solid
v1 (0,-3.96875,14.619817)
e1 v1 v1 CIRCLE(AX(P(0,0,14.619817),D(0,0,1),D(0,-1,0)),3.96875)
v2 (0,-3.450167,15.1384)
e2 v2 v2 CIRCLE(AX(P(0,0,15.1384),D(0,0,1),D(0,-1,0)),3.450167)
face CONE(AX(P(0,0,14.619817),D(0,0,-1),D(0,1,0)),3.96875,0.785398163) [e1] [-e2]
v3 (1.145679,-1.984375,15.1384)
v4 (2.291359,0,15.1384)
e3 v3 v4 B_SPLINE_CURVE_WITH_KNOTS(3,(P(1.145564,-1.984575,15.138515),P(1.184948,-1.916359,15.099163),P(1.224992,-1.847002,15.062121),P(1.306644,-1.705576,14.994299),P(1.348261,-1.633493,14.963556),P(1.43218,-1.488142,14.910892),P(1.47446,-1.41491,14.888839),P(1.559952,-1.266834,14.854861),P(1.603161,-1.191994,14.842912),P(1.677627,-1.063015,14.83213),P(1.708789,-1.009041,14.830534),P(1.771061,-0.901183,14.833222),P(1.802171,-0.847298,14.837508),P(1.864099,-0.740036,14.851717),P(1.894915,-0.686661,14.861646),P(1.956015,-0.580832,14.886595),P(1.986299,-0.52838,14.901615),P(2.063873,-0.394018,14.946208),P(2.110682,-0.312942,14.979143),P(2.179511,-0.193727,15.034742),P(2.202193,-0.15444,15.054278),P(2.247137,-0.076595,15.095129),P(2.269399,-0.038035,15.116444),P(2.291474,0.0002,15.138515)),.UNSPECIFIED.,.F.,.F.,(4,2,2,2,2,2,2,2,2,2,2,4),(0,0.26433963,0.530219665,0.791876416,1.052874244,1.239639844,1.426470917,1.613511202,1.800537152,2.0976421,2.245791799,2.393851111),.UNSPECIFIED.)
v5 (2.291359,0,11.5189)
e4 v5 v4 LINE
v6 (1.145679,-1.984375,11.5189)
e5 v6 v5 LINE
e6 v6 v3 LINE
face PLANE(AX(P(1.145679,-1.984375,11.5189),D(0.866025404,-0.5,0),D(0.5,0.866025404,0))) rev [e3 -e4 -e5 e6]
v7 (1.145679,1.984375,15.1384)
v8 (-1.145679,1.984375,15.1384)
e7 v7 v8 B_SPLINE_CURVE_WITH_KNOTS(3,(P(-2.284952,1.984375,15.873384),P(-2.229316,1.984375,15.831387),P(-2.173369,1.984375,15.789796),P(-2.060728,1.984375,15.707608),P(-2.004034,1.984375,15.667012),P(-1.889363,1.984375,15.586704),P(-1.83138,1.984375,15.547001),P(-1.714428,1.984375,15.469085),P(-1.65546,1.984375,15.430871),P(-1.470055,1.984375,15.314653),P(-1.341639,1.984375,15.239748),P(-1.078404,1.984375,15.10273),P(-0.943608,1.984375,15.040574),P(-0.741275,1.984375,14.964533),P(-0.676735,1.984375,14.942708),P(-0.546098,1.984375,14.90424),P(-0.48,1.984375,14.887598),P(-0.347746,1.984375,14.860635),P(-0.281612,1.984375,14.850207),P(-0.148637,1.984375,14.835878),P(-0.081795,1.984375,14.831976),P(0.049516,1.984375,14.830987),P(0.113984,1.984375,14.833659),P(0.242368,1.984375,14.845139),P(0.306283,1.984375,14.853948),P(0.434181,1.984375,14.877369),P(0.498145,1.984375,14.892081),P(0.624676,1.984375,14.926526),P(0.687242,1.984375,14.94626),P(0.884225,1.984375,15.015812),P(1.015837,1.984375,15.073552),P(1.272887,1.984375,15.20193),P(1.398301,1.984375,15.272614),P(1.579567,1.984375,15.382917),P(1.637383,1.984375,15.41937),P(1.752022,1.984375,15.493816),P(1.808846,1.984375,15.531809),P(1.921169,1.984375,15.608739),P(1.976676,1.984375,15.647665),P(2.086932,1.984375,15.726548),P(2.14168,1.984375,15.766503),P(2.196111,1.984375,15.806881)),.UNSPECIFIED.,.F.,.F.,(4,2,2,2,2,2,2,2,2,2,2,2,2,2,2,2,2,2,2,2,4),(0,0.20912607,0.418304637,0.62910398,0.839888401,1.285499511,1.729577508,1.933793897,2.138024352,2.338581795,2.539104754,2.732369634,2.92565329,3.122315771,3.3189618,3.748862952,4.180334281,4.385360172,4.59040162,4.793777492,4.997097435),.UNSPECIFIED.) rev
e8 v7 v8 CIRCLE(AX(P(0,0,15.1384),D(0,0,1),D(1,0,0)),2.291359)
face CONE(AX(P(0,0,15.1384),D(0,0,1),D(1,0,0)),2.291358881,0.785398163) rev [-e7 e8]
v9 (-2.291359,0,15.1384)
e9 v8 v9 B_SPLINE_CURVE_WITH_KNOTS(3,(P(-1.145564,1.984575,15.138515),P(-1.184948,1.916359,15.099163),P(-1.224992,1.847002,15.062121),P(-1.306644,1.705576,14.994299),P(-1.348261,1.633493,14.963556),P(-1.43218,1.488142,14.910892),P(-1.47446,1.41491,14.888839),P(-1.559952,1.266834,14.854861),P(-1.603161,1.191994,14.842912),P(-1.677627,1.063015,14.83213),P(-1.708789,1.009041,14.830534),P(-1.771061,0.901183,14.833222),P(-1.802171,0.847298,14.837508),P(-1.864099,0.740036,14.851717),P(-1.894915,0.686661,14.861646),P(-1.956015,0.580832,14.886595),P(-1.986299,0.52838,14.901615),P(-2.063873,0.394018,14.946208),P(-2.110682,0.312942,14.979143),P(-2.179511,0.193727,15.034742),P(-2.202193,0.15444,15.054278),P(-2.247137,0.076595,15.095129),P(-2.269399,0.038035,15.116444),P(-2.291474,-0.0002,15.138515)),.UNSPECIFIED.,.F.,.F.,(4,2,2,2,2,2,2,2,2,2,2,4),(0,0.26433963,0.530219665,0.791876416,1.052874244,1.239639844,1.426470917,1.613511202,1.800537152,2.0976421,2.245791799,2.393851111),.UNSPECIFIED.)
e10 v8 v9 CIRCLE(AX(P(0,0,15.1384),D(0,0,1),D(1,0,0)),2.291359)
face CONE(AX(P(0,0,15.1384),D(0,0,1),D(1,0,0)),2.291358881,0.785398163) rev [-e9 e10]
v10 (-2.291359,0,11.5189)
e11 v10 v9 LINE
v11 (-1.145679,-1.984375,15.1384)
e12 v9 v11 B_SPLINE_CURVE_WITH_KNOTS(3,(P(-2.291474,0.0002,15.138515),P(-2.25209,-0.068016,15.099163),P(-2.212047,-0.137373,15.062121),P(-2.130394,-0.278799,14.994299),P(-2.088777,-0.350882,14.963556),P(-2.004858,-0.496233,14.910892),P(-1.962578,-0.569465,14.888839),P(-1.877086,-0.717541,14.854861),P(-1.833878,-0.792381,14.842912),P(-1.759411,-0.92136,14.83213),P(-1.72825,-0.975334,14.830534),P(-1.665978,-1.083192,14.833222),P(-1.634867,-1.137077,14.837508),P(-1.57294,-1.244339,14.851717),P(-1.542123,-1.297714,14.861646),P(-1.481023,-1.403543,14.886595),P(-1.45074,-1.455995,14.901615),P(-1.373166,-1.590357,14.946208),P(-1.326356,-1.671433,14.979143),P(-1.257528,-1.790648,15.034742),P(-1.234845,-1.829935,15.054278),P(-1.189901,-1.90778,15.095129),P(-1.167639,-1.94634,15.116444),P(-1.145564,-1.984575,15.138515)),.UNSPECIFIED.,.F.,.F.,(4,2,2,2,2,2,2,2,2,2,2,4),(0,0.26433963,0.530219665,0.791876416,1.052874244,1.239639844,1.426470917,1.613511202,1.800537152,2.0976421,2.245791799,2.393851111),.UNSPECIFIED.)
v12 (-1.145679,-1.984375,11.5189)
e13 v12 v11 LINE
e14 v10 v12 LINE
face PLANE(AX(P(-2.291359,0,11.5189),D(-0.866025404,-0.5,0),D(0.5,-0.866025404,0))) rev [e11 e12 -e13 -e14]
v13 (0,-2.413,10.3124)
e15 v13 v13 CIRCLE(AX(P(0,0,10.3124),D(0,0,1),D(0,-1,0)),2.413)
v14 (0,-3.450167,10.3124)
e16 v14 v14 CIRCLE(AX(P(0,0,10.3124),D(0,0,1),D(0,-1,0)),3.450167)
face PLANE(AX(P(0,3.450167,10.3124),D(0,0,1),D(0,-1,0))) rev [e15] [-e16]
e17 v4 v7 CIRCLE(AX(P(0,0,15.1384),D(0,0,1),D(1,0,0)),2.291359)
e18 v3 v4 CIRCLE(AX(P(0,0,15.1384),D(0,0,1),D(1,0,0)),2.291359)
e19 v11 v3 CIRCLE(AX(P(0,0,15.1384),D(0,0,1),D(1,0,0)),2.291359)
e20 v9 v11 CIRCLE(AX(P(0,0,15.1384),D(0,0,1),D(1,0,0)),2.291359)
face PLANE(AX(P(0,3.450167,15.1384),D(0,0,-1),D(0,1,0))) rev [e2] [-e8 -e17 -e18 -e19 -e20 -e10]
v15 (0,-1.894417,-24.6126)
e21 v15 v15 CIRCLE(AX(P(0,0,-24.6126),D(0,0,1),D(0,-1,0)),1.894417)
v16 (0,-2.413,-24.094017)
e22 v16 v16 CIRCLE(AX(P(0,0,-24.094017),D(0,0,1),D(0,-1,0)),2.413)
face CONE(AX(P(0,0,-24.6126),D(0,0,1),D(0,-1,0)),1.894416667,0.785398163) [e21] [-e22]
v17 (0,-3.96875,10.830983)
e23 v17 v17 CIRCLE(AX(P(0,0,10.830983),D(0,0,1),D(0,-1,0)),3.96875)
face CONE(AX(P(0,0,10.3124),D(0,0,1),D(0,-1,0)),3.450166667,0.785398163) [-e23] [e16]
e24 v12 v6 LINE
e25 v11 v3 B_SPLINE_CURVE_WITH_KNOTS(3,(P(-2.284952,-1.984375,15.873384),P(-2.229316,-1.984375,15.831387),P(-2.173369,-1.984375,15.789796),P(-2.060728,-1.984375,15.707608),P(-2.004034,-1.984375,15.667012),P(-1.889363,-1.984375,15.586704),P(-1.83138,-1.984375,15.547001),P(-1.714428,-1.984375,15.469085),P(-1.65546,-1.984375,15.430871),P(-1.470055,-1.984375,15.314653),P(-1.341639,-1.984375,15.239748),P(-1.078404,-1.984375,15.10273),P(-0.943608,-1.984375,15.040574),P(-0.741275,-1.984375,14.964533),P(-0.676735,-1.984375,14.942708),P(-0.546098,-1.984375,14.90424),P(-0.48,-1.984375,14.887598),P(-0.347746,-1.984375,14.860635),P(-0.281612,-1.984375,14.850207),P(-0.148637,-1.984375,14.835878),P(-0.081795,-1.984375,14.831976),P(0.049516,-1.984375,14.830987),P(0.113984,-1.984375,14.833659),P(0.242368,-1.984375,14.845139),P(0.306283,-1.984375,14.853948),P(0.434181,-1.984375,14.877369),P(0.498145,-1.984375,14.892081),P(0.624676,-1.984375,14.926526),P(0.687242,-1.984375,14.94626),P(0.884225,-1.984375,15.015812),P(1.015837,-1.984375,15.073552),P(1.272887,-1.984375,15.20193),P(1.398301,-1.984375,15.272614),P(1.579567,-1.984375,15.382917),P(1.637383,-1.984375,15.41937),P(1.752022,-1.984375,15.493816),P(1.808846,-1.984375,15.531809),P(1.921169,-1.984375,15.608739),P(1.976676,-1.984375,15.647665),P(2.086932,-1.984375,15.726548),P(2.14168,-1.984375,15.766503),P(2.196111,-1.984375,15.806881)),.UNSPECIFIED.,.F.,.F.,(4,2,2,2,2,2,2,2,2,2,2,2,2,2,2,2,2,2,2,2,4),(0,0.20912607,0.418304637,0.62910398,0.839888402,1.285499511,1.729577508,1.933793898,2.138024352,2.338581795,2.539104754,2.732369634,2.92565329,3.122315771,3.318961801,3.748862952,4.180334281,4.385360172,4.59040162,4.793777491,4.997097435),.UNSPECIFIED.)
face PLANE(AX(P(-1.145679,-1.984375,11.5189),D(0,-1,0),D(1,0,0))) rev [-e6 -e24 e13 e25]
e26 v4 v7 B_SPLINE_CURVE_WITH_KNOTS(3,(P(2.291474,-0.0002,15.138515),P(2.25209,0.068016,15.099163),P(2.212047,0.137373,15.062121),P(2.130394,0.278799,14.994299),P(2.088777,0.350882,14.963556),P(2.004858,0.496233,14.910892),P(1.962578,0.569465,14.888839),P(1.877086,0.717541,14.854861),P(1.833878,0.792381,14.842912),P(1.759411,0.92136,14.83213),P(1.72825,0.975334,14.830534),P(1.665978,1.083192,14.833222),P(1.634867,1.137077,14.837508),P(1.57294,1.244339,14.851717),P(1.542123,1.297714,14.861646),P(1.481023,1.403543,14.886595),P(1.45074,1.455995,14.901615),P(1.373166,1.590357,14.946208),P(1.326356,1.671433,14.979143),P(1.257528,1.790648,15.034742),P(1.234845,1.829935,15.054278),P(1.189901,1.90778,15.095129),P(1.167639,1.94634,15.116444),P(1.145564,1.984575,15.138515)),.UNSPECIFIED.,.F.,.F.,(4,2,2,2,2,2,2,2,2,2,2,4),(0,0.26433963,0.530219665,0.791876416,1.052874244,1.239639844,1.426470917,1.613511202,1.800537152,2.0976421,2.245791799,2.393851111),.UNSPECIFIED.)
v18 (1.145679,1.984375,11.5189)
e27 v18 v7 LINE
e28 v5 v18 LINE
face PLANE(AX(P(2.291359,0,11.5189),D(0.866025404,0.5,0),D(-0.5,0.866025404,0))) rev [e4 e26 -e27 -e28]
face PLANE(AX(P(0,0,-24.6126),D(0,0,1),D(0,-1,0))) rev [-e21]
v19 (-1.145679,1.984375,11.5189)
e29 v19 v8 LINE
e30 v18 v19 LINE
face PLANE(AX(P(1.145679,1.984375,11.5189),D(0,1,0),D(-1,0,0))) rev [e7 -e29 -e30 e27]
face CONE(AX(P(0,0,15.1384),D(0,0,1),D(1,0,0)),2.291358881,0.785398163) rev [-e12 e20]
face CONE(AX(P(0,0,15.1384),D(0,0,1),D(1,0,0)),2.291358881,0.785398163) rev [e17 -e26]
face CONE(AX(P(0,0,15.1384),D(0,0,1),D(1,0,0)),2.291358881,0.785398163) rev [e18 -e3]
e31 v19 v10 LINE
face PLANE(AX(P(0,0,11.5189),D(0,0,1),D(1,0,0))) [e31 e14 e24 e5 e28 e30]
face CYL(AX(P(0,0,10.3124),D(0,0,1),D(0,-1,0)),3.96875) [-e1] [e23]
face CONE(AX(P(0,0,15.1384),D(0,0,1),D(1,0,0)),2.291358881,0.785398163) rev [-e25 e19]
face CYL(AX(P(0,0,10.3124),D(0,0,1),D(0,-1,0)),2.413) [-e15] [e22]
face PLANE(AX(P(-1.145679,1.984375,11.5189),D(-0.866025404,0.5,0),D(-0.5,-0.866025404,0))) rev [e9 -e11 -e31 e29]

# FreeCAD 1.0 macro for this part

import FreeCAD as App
import Part
import Sketcher

V = App.Vector
Q = App.Units.Quantity

doc = App.newDocument("Part")
body = doc.addObject("PartDesign::Body", "Body")

# Sketch on YZ plane
sketch1 = body.newObject("Sketcher::SketchObject", "Sketch")
sketch1.AttachmentSupport = (doc.getObject("YZ_Plane"), [""])
sketch1.MapMode = "FlatFace"
sketch1.addGeometry([
    Part.LineSegment(V(0, 15.1, 0), V(0, -24.6, 0)),  # 0
    Part.LineSegment(V(0, -24.6, 0), V(1.9, -24.6, 0)),  # 1
    Part.LineSegment(V(1.9, -24.6, 0), V(2.4, -24.1, 0)),  # 2
    Part.LineSegment(V(2.4, -24.1, 0), V(2.4, 10.3, 0)),  # 3
    Part.LineSegment(V(2.4, 10.3, 0), V(3.5, 10.3, 0)),  # 4
    Part.LineSegment(V(3.5, 10.3, 0), V(4, 10.8, 0)),  # 5
    Part.LineSegment(V(4, 10.8, 0), V(4, 14.6, 0)),  # 6
    Part.LineSegment(V(4, 14.6, 0), V(3.5, 15.1, 0)),  # 7
    Part.LineSegment(V(3.5, 15.1, 0), V(0, 15.1, 0)),  # 8
], False)
sketch1.addConstraint([
    Sketcher.Constraint("Coincident", 0, 2, 1, 1),
    Sketcher.Constraint("Coincident", 1, 2, 2, 1),
    Sketcher.Constraint("Coincident", 2, 2, 3, 1),
    Sketcher.Constraint("Coincident", 3, 2, 4, 1),
    Sketcher.Constraint("Coincident", 4, 2, 5, 1),
    Sketcher.Constraint("Coincident", 5, 2, 6, 1),
    Sketcher.Constraint("Coincident", 6, 2, 7, 1),
    Sketcher.Constraint("Coincident", 7, 2, 8, 1),
    Sketcher.Constraint("Coincident", 8, 2, 0, 1),
    Sketcher.Constraint("Vertical", 0),
    Sketcher.Constraint("Horizontal", 1),
    Sketcher.Constraint("Vertical", 3),
    Sketcher.Constraint("Horizontal", 4),
    Sketcher.Constraint("Vertical", 6),
    Sketcher.Constraint("Horizontal", 8),
    Sketcher.Constraint("PointOnObject", 0, 2, -2),
    Sketcher.Constraint("Parallel", 2, 5),
    Sketcher.Constraint("Perpendicular", 5, 7),
    Sketcher.Constraint("Vertical", 4, 2, 7, 2),
    Sketcher.Constraint("Equal", 2, 5),
    Sketcher.Constraint("Equal", 5, 7),
    Sketcher.Constraint("DistanceY", 0, 2, 0, 1, Q("1.565 in")),
    Sketcher.Constraint("DistanceY", 4, 2, 7, 2, Q("0.19 in")),
    Sketcher.Constraint("DistanceY", 0, 2, -1, 1, Q("0.969 in")),
    Sketcher.Constraint("DistanceX", -1, 1, 2, 2, Q("0.095 in")),
    Sketcher.Constraint("DistanceX", -1, 1, 5, 2, Q("0.15625 in")),
    Sketcher.Constraint("DistanceX", 1, 1, 1, 2, 1.894417),
])
revolution = body.newObject("PartDesign::Revolution", "Revolution")
revolution.Profile = sketch1
revolution.ReferenceAxis = (sketch1, ["V_Axis"])
revolution.Angle = 360

# Sketch on XY plane
sketch2 = body.newObject("Sketcher::SketchObject", "Sketch001")
sketch2.AttachmentSupport = (doc.getObject("XY_Plane"), [""])
sketch2.MapMode = "FlatFace"
sketch2.AttachmentOffset = App.Placement(V(0, 0, 0.596 * 25.4), App.Rotation())
sketch2.addGeometry([
    Part.LineSegment(V(1.1, 2, 0), V(-1.1, 2, 0)),  # 0
    Part.LineSegment(V(-1.1, 2, 0), V(-2.3, 0, 0)),  # 1
    Part.LineSegment(V(-2.3, 0, 0), V(-1.1, -2, 0)),  # 2
    Part.LineSegment(V(-1.1, -2, 0), V(1.1, -2, 0)),  # 3
    Part.LineSegment(V(1.1, -2, 0), V(2.3, 0, 0)),  # 4
    Part.LineSegment(V(2.3, 0, 0), V(1.1, 2, 0)),  # 5
], False)
sketch2.addConstraint([
    Sketcher.Constraint("Coincident", 0, 2, 1, 1),
    Sketcher.Constraint("Coincident", 1, 2, 2, 1),
    Sketcher.Constraint("Coincident", 2, 2, 3, 1),
    Sketcher.Constraint("Coincident", 3, 2, 4, 1),
    Sketcher.Constraint("Coincident", 4, 2, 5, 1),
    Sketcher.Constraint("Coincident", 5, 2, 0, 1),
    Sketcher.Constraint("Horizontal", 0),
    Sketcher.Constraint("Horizontal", 3),
    Sketcher.Constraint("Symmetric", 0, 2, 3, 2, -1, 1),
    Sketcher.Constraint("Symmetric", 1, 2, 4, 2, -1, 1),
    Sketcher.Constraint("PointOnObject", 1, 2, -1),
    Sketcher.Constraint("Parallel", 2, 5),
    Sketcher.Constraint("Vertical", 0, 2, 2, 2),
    Sketcher.Constraint("Angle", 1, Q("-120 deg")),
    Sketcher.Constraint("DistanceY", -1, 1, 0, 2, Q("0.078125 in")),
    Sketcher.Constraint("DistanceX", 0, 2, 0, 1, 2.291359),
])
pocket1 = body.newObject("PartDesign::Pocket", "Pocket")
pocket1.Profile = sketch2
pocket1.Length = Q("0.1425 in")

# Sketch on YZ plane
sketch3 = body.newObject("Sketcher::SketchObject", "Sketch002")
sketch3.AttachmentSupport = (doc.getObject("YZ_Plane"), [""])
sketch3.MapMode = "FlatFace"
sketch3.addGeometry([
    Part.LineSegment(V(0, 15.1, 0), V(-2.3, 15.1, 0)),
    Part.LineSegment(V(-2.3, 15.1, 0), V(0, 12.8, 0)),
    Part.LineSegment(V(0, 12.8, 0), V(0, 15.1, 0)),
], False)
sketch3.addConstraint([
    Sketcher.Constraint("Coincident", 0, 2, 1, 1),
    Sketcher.Constraint("Coincident", 1, 2, 2, 1),
    Sketcher.Constraint("Coincident", 2, 2, 0, 1),
    Sketcher.Constraint("Horizontal", 0),
    Sketcher.Constraint("Vertical", 2),
    Sketcher.Constraint("PointOnObject", 1, 2, -2),
    Sketcher.Constraint("Equal", 0, 2),
    Sketcher.Constraint("DistanceY", -1, 1, 0, 2, Q("0.596 in")),
    Sketcher.Constraint("DistanceX", 0, 2, 0, 1, 2.291359),
])
groove = body.newObject("PartDesign::Groove", "Groove")
groove.Profile = sketch3
groove.ReferenceAxis = (sketch3, ["V_Axis"])
groove.Angle = 360

doc.recompute()
